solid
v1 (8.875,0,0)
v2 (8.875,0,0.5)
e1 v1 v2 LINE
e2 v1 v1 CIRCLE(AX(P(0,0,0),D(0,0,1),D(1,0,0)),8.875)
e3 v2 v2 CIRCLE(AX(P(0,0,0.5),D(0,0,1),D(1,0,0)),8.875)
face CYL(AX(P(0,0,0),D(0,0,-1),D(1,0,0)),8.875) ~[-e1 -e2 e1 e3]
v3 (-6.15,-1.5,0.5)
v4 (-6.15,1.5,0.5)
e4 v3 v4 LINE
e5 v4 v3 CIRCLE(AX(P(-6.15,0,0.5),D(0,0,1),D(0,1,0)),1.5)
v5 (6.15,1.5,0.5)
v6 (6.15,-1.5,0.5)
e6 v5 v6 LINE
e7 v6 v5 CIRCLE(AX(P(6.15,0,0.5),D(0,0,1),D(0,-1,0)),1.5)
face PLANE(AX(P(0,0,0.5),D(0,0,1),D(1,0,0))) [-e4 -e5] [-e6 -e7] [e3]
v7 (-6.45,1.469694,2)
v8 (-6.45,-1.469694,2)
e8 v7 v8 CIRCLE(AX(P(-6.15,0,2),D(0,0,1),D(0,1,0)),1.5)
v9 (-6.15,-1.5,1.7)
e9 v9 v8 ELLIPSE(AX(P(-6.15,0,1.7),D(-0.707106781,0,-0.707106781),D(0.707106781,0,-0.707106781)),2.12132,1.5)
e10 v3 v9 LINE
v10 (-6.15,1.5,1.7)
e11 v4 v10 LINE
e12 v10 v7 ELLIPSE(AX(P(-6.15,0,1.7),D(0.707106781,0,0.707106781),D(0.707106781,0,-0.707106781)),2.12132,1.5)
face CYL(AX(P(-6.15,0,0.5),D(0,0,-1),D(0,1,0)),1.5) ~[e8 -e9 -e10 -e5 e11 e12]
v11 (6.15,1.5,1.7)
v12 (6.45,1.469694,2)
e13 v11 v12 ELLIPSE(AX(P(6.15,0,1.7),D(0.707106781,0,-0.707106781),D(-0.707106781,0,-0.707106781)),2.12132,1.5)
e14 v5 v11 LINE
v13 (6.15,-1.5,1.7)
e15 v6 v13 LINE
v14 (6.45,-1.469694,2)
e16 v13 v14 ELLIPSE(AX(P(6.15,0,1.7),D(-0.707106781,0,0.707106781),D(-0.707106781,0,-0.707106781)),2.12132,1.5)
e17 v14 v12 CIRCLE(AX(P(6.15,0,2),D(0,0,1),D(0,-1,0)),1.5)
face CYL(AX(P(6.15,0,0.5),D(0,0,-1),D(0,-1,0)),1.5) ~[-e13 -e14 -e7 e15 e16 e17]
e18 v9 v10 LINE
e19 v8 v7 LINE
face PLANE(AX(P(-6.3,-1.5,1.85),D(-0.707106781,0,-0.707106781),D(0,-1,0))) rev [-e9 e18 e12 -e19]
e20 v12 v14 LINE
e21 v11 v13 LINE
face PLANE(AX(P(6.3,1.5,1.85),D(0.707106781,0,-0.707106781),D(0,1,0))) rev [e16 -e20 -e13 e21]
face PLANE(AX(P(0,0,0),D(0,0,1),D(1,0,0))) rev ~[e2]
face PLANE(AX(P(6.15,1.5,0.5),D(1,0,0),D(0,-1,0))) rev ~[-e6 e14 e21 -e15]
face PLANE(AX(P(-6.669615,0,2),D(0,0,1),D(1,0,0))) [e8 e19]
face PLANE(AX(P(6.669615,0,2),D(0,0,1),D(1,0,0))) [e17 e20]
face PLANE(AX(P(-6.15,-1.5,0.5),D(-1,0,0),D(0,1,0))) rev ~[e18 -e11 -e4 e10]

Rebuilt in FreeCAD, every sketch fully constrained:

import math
import FreeCAD as App
import Part
import Sketcher
from FreeCAD import Vector


def edges_at(feature, points):
    """Names of the edges that pass closest to the given points."""
    edges = feature.Shape.Edges
    near = lambda p: min(range(len(edges)), key=lambda i: edges[i].distToShape(Part.Vertex(*p))[0])
    return sorted({f"Edge{near(p) + 1}" for p in points})

doc = App.newDocument("Part")
body = doc.addObject("PartDesign::Body", "Body")

# Sketch on XY plane
sketch1 = doc.addObject("Sketcher::SketchObject", "Sketch")
body.addObject(sketch1)
sketch1.AttachmentSupport = (doc.XY_Plane, [""])
sketch1.MapMode = "FlatFace"
sketch1.addGeometry(Part.Circle(Vector(0, 0, 0), Vector(0, 0, 1), 8.875), False)
sketch1.addConstraint([
    Sketcher.Constraint("Coincident", 0, 3, -1, 1),
    Sketcher.Constraint("Diameter", 0, 17.75),
])
pad1 = doc.addObject("PartDesign::Pad", "Pad")
body.addObject(pad1)
pad1.Profile = sketch1
pad1.Length = 0.5

# Sketch on XY plane
sketch2 = doc.addObject("Sketcher::SketchObject", "Sketch001")
body.addObject(sketch2)
sketch2.AttachmentSupport = (doc.XY_Plane, [""])
sketch2.MapMode = "FlatFace"
sketch2.AttachmentOffset = App.Placement(Vector(0, 0, 0.5), App.Rotation())
sketch2.addGeometry([
    Part.LineSegment(Vector(-6.15, -1.5, 0), Vector(-6.15, 1.5, 0)),
    Part.ArcOfCircle(Part.Circle(Vector(-6.15, 0, 0), Vector(0, 0, 1), 1.5), math.radians(90), math.radians(270)),
    Part.ArcOfCircle(Part.Circle(Vector(6.15, 0, 0), Vector(0, 0, 1), 1.5), math.radians(-90), math.radians(90)),
    Part.LineSegment(Vector(6.15, 1.5, 0), Vector(6.15, -1.5, 0)),
], False)
sketch2.addConstraint([
    Sketcher.Constraint("Coincident", 0, 1, 1, 2),
    Sketcher.Constraint("Coincident", 1, 1, 0, 2),
    Sketcher.Constraint("Coincident", 2, 1, 3, 2),
    Sketcher.Constraint("Coincident", 3, 1, 2, 2),
    Sketcher.Constraint("Vertical", 0),
    Sketcher.Constraint("Vertical", 3),
    Sketcher.Constraint("Equal", 1, 2),
    Sketcher.Constraint("Symmetric", 1, 3, 2, 3, -1, 1),
    Sketcher.Constraint("Symmetric", 0, 1, 2, 1, -2),
    Sketcher.Constraint("Vertical", 1, 3, 0, 1),
    Sketcher.Constraint("Radius", 1, 1.5),
    Sketcher.Constraint("DistanceX", 1, 3, 2, 3, 12.3),
])
pad2 = doc.addObject("PartDesign::Pad", "Pad001")
body.addObject(pad2)
pad2.Profile = sketch2
pad2.Length = 1.5
doc.recompute()

chamfer = doc.addObject("PartDesign::Chamfer", "Chamfer")
body.addObject(chamfer)
chamfer.Base = (pad2, edges_at(pad2, [(-6.15, 0, 2), (6.15, 0, 2)]))
chamfer.Size = 0.3

doc.recompute()
